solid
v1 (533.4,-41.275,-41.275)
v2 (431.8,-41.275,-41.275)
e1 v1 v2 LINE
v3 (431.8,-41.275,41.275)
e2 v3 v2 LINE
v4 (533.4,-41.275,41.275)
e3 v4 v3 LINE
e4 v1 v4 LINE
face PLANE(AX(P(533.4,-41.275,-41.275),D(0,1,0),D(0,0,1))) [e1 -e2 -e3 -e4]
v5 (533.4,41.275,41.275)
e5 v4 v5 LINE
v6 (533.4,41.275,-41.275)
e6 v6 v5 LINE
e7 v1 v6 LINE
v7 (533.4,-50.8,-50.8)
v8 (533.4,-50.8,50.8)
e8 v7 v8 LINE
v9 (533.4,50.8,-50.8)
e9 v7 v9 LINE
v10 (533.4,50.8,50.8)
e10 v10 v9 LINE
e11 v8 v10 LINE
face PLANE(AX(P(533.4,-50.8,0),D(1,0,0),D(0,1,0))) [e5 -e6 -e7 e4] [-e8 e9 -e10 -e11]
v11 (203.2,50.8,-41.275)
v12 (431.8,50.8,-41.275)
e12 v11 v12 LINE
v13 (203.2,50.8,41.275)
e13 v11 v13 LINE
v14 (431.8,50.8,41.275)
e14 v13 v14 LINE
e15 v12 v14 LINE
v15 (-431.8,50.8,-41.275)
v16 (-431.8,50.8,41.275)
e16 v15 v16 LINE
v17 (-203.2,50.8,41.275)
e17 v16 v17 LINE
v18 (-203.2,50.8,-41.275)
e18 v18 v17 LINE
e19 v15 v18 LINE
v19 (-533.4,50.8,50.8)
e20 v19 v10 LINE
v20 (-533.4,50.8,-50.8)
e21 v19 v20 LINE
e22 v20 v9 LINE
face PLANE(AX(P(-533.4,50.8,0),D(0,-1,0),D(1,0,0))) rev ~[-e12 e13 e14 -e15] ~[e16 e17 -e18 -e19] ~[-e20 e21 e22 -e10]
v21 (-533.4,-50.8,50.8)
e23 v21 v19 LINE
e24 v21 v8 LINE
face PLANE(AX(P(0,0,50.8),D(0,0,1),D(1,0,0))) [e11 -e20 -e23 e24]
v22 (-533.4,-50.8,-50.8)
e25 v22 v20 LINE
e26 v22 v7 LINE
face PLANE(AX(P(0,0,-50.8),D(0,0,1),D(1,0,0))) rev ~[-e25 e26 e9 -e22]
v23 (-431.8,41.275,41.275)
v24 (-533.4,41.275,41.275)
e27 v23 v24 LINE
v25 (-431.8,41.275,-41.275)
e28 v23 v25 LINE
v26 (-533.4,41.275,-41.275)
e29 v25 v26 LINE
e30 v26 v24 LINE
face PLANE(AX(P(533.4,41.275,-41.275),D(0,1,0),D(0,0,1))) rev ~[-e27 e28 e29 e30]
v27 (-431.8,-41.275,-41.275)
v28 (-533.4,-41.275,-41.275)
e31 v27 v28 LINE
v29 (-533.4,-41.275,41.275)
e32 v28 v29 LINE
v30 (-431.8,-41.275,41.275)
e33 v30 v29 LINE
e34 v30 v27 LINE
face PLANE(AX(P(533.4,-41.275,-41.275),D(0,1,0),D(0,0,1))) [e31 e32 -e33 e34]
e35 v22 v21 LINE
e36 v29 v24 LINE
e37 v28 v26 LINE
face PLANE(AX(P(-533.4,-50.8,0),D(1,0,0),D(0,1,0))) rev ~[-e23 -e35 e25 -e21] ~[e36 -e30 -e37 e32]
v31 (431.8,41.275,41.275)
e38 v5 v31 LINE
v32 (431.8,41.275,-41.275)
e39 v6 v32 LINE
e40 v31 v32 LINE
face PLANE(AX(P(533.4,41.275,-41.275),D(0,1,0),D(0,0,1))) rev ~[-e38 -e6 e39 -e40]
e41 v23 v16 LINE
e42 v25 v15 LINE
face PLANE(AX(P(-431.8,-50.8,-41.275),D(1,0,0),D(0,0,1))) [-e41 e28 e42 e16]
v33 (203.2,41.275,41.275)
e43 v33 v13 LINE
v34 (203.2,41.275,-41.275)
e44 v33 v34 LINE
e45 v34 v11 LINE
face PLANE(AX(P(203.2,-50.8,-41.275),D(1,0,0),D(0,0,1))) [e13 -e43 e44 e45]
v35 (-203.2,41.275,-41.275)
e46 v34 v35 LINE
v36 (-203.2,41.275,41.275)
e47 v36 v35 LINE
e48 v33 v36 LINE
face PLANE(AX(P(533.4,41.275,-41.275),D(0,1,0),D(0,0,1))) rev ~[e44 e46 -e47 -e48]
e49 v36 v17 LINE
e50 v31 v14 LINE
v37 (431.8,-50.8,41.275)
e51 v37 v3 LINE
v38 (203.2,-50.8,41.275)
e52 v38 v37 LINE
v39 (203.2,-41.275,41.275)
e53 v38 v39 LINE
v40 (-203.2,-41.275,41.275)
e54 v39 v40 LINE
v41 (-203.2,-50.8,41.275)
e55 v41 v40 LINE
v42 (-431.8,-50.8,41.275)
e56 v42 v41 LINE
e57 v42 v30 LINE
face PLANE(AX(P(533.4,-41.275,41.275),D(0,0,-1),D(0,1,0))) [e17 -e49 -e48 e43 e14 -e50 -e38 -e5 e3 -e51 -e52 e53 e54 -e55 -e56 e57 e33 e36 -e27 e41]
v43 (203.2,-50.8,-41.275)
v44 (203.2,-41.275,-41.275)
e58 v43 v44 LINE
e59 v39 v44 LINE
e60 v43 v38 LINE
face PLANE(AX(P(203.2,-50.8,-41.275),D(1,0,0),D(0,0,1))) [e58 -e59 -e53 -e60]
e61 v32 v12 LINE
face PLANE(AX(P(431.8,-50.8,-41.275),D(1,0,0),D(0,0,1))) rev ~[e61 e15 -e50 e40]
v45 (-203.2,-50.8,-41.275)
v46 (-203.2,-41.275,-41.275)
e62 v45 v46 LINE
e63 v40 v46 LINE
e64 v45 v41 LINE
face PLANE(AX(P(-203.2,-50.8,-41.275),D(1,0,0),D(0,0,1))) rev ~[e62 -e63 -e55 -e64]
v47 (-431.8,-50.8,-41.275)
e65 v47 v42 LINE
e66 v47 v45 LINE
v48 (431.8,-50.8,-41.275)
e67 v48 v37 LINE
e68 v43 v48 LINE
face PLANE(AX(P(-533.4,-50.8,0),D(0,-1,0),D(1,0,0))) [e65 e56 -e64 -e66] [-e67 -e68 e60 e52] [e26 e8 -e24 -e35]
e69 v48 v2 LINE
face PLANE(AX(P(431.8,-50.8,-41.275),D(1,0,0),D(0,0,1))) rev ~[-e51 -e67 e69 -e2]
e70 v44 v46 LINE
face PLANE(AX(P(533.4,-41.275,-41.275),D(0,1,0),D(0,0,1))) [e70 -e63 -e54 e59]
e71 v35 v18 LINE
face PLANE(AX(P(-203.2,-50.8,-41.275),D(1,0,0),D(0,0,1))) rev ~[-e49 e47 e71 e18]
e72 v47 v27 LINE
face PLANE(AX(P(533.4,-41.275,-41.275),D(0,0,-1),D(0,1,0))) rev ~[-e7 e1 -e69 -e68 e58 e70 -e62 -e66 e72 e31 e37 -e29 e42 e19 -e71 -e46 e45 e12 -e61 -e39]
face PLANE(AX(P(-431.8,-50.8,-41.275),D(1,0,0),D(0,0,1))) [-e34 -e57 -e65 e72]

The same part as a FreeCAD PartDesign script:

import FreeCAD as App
import Part
import Sketcher
Q = App.Units.Quantity


def add_polygon(sketch, points):
    """Adds a closed chain of lines whose ends are joined by coincident constraints."""
    first, n = sketch.GeometryCount, len(points)
    for a, b in zip(points, points[1:] + points[:1]):
        sketch.addGeometry(Part.LineSegment(App.Vector(*a, 0), App.Vector(*b, 0)), False)
    for i in range(n):
        sketch.addConstraint(Sketcher.Constraint("Coincident", first + i, 2, first + (i + 1) % n, 1))

doc = App.newDocument("Part")
body = doc.addObject("PartDesign::Body", "Body")

# Sketch on XY plane
sketch1 = body.newObject("Sketcher::SketchObject", "Sketch")
sketch1.AttachmentSupport = (doc.getObject("XY_Plane"), [""])
sketch1.MapMode = "FlatFace"
add_polygon(sketch1, [(-533, 51), (-533, -51), (533, -51), (533, 51)])  # lines 0-3
sketch1.addConstraint([
    Sketcher.Constraint("Vertical", 0),
    Sketcher.Constraint("Horizontal", 1),
    Sketcher.Constraint("Vertical", 2),
    Sketcher.Constraint("Horizontal", 3),
    Sketcher.Constraint("Symmetric", 0, 2, 2, 2, -1, 1),
    Sketcher.Constraint("DistanceX", 1, 1, 1, 2, Q("42 in")),
    Sketcher.Constraint("DistanceY", 0, 2, 0, 1, Q("4 in")),
])
pad1 = body.newObject("PartDesign::Pad", "Pad")
pad1.Profile = sketch1
pad1.Length = Q("4 in")
pad1.Midplane = True

# Sketch on YZ plane
sketch2 = body.newObject("Sketcher::SketchObject", "Sketch001")
sketch2.AttachmentSupport = (doc.getObject("YZ_Plane"), [""])
sketch2.MapMode = "FlatFace"
sketch2.AttachmentOffset = App.Placement(App.Vector(0, 0, 21 * 25.4), App.Rotation())
add_polygon(sketch2, [(-41, 41), (-41, -41), (41, -41), (41, 41)])  # lines 0-3
sketch2.addConstraint([
    Sketcher.Constraint("Vertical", 0),
    Sketcher.Constraint("Horizontal", 1),
    Sketcher.Constraint("Vertical", 2),
    Sketcher.Constraint("Horizontal", 3),
    Sketcher.Constraint("Symmetric", 0, 2, 2, 2, -1, 1),
    Sketcher.Constraint("Equal", 3, 0),
    Sketcher.Constraint("DistanceX", 1, 1, 1, 2, Q("3.25 in")),
])
pocket1 = body.newObject("PartDesign::Pocket", "Pocket")
pocket1.Profile = sketch2
pocket1.Type = "ThroughAll"

# Sketch on XZ plane
sketch3 = body.newObject("Sketcher::SketchObject", "Sketch002")
sketch3.AttachmentSupport = (doc.getObject("XZ_Plane"), [""])
sketch3.MapMode = "FlatFace"
sketch3.AttachmentOffset = App.Placement(App.Vector(0, 0, 2 * 25.4), App.Rotation())
add_polygon(sketch3, [(-432, 41), (-432, -41), (-203, -41), (-203, 41)])  # lines 0-3
add_polygon(sketch3, [(203, 41), (203, -41), (432, -41), (432, 41)])  # lines 4-7
sketch3.addConstraint([
    Sketcher.Constraint("Vertical", 0),
    Sketcher.Constraint("Horizontal", 1),
    Sketcher.Constraint("Vertical", 2),
    Sketcher.Constraint("Horizontal", 3),
    Sketcher.Constraint("Vertical", 4),
    Sketcher.Constraint("Horizontal", 5),
    Sketcher.Constraint("Vertical", 6),
    Sketcher.Constraint("Horizontal", 7),
    Sketcher.Constraint("Symmetric", 2, 2, 4, 2, -1, 1),
    Sketcher.Constraint("Symmetric", 0, 2, 6, 2, -1, 1),
    Sketcher.Constraint("Horizontal", 1, 2, 4, 2),
    Sketcher.Constraint("DistanceX", 1, 1, 1, 2, Q("9 in")),
    Sketcher.Constraint("DistanceX", 0, 2, -1, 1, Q("17 in")),
    Sketcher.Constraint("DistanceY", 0, 2, 0, 1, Q("3.25 in")),
])
pocket2 = body.newObject("PartDesign::Pocket", "Pocket001")
pocket2.Profile = sketch3
pocket2.Type = "ThroughAll"

doc.recompute()
